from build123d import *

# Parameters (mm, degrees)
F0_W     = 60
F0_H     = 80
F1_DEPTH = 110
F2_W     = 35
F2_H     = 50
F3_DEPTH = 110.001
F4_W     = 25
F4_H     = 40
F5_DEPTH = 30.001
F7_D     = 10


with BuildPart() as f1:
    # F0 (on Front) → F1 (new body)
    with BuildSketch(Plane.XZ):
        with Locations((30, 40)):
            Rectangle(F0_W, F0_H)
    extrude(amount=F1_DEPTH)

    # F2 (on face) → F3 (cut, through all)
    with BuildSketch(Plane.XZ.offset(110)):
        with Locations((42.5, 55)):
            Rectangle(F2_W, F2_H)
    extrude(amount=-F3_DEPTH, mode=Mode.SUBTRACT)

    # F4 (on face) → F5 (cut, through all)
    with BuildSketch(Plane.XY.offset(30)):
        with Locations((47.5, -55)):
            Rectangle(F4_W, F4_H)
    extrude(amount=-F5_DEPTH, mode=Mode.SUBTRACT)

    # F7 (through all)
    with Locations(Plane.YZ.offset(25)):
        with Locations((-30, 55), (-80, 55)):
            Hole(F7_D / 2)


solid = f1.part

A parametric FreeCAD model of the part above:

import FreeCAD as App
import Part
import Sketcher
Q = App.Units.Quantity


def add_polygon(sketch, points):
    """Adds a closed chain of lines whose ends are joined by coincident constraints."""
    first, n = sketch.GeometryCount, len(points)
    for a, b in zip(points, points[1:] + points[:1]):
        sketch.addGeometry(Part.LineSegment(App.Vector(*a, 0), App.Vector(*b, 0)), False)
    for i in range(n):
        sketch.addConstraint(Sketcher.Constraint("Coincident", first + i, 2, first + (i + 1) % n, 1))

doc = App.newDocument("Part")
params = doc.addObject("Spreadsheet::Sheet", "Params")
for row, (alias, value) in enumerate([
    ("sketch1_width", "60 mm"),
    ("sketch1_height", "80 mm"),
    ("pad1_length", "110 mm"),
    ("sketch2_width", "35 mm"),
    ("sketch2_height", "50 mm"),
    ("sketch3_width", "25 mm"),
    ("sketch3_height", "40 mm"),
    ("sketch4_diameter", "10 mm"),
    ("hole_diameter", "10 mm"),
], start=1):
    params.set(f"A{row}", alias)
    params.set(f"B{row}", "=" + value)
    params.setAlias(f"B{row}", alias)

body = doc.addObject("PartDesign::Body", "Body")

sketch1 = body.newObject("Sketcher::SketchObject", "Sketch")
sketch1.AttachmentSupport = (doc.getObject("XZ_Plane"), [""])
sketch1.MapMode = "FlatFace"
add_polygon(sketch1, [(0, 80), (0, 0), (60, 0), (60, 80)])
sketch1.addConstraint([
    Sketcher.Constraint("Vertical", 0),
    Sketcher.Constraint("Horizontal", 1),
    Sketcher.Constraint("Vertical", 2),
    Sketcher.Constraint("Horizontal", 3),
    Sketcher.Constraint("Coincident", 0, 2, -1, 1),
    Sketcher.Constraint("DistanceX", 1, 1, 1, 2, Q("60 mm")),
    Sketcher.Constraint("DistanceY", 0, 2, 0, 1, Q("80 mm")),
])
sketch1.setExpression("Constraints[9]", "Params.sketch1_width")
sketch1.setExpression("Constraints[10]", "Params.sketch1_height")
pad1 = body.newObject("PartDesign::Pad", "Pad")
pad1.Profile = sketch1
pad1.setExpression("Length", "Params.pad1_length")

sketch2 = body.newObject("Sketcher::SketchObject", "Sketch001")
sketch2.AttachmentSupport = (doc.getObject("XZ_Plane"), [""])
sketch2.MapMode = "FlatFace"
sketch2.AttachmentOffset = App.Placement(App.Vector(0, 0, 110), App.Rotation())
add_polygon(sketch2, [(25, 80), (25, 30), (60, 30), (60, 80)])
sketch2.addConstraint([
    Sketcher.Constraint("Vertical", 0),
    Sketcher.Constraint("Horizontal", 1),
    Sketcher.Constraint("Vertical", 2),
    Sketcher.Constraint("Horizontal", 3),
    Sketcher.Constraint("DistanceX", 1, 1, 1, 2, Q("35 mm")),
    Sketcher.Constraint("DistanceY", 0, 2, 0, 1, Q("50 mm")),
    Sketcher.Constraint("DistanceX", -1, 1, 0, 2, Q("25 mm")),
    Sketcher.Constraint("DistanceY", -1, 1, 0, 2, Q("30 mm")),
])
sketch2.setExpression("Constraints[8]", "Params.sketch2_width")
sketch2.setExpression("Constraints[9]", "Params.sketch2_height")
pocket1 = body.newObject("PartDesign::Pocket", "Pocket")
pocket1.Profile = sketch2
pocket1.Type = "ThroughAll"

sketch3 = body.newObject("Sketcher::SketchObject", "Sketch002")
sketch3.AttachmentSupport = (doc.getObject("XY_Plane"), [""])
sketch3.MapMode = "FlatFace"
sketch3.AttachmentOffset = App.Placement(App.Vector(0, 0, 30), App.Rotation())
add_polygon(sketch3, [(35, -35), (35, -75), (60, -75), (60, -35)])
sketch3.addConstraint([
    Sketcher.Constraint("Vertical", 0),
    Sketcher.Constraint("Horizontal", 1),
    Sketcher.Constraint("Vertical", 2),
    Sketcher.Constraint("Horizontal", 3),
    Sketcher.Constraint("DistanceX", 1, 1, 1, 2, Q("25 mm")),
    Sketcher.Constraint("DistanceY", 0, 2, 0, 1, Q("40 mm")),
    Sketcher.Constraint("DistanceX", -1, 1, 0, 2, Q("35 mm")),
    Sketcher.Constraint("DistanceY", 0, 2, -1, 1, Q("75 mm")),
])
sketch3.setExpression("Constraints[8]", "Params.sketch3_width")
sketch3.setExpression("Constraints[9]", "Params.sketch3_height")
pocket2 = body.newObject("PartDesign::Pocket", "Pocket001")
pocket2.Profile = sketch3
pocket2.Type = "ThroughAll"

sketch4 = body.newObject("Sketcher::SketchObject", "Sketch003")
sketch4.AttachmentSupport = (doc.getObject("YZ_Plane"), [""])
sketch4.MapMode = "FlatFace"
sketch4.AttachmentOffset = App.Placement(App.Vector(0, 0, 25), App.Rotation())
sketch4.addGeometry([
    Part.Circle(App.Vector(-30, 55, 0), App.Vector(0, 0, 1), 5),
    Part.Circle(App.Vector(-80, 55, 0), App.Vector(0, 0, 1), 5),
], False)
sketch4.addConstraint([
    Sketcher.Constraint("Equal", 0, 1),
    Sketcher.Constraint("Horizontal", 0, 3, 1, 3),
    Sketcher.Constraint("Diameter", 0, Q("10 mm")),
    Sketcher.Constraint("DistanceX", 0, 3, -1, 1, Q("30 mm")),
    Sketcher.Constraint("DistanceY", -1, 1, 0, 3, Q("55 mm")),
    Sketcher.Constraint("DistanceX", 1, 3, -1, 1, Q("80 mm")),
])
sketch4.setExpression("Constraints[2]", "Params.sketch4_diameter")
doc.recompute()
hole = body.newObject("PartDesign::Hole", "Hole")
hole.Profile = sketch4
hole.ThreadType = "None"
hole.setExpression("Diameter", "Params.hole_diameter")
hole.DepthType = "ThroughAll"

doc.recompute()
